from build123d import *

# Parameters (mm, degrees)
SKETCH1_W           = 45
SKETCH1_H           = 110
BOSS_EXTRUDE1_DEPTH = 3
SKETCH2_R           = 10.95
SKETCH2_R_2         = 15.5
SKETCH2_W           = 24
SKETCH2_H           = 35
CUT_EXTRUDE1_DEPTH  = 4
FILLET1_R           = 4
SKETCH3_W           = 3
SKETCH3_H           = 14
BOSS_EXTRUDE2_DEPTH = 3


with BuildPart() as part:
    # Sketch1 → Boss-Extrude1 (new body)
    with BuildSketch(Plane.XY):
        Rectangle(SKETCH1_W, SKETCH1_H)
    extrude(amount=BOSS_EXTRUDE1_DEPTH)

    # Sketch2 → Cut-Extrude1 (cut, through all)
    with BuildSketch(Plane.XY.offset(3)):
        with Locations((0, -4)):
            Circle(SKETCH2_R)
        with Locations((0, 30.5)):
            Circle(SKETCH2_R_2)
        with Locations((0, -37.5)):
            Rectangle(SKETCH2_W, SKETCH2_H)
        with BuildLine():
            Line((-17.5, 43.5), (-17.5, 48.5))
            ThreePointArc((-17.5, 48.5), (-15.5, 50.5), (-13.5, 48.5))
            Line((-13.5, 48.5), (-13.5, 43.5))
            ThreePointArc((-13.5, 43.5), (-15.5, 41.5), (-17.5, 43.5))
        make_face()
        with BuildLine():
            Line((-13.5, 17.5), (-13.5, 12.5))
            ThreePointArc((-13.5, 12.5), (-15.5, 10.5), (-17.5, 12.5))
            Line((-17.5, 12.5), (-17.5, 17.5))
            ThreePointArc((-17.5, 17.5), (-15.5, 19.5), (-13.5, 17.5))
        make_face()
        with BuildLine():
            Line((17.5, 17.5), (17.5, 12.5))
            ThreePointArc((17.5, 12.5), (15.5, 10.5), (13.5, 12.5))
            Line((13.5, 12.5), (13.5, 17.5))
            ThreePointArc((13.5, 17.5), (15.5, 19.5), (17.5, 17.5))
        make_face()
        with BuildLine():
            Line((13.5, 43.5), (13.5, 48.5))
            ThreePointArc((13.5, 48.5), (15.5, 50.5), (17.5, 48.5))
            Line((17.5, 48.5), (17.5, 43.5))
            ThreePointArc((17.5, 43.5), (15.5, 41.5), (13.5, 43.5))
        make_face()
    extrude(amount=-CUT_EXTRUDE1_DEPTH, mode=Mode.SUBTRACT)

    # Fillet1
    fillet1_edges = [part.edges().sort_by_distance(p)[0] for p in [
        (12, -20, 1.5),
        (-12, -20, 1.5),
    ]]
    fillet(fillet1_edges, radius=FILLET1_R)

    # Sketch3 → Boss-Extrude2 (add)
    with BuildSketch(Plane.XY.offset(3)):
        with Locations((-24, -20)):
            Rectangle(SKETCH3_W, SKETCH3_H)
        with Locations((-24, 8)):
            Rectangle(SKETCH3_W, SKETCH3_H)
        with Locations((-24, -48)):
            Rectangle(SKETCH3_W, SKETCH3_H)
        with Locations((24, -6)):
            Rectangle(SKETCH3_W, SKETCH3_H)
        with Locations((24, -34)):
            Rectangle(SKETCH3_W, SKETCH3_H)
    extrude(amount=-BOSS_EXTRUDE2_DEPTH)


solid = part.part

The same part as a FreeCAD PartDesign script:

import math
import FreeCAD as App
import Part
import Sketcher
Q = App.Units.Quantity


def edges_at(feature, points):
    """Names of the edges that pass closest to the given points."""
    edges = feature.Shape.Edges
    near = lambda p: min(range(len(edges)), key=lambda i: edges[i].distToShape(Part.Vertex(*p))[0])
    return sorted({f"Edge{near(p) + 1}" for p in points})


def add_polygon(sketch, points):
    """Adds a closed chain of lines whose ends are joined by coincident constraints."""
    first, n = sketch.GeometryCount, len(points)
    for a, b in zip(points, points[1:] + points[:1]):
        sketch.addGeometry(Part.LineSegment(App.Vector(*a, 0), App.Vector(*b, 0)), False)
    for i in range(n):
        sketch.addConstraint(Sketcher.Constraint("Coincident", first + i, 2, first + (i + 1) % n, 1))

doc = App.newDocument("Part")
body = doc.addObject("PartDesign::Body", "Body")

sketch1 = body.newObject("Sketcher::SketchObject", "Sketch")
sketch1.AttachmentSupport = (doc.getObject("XY_Plane"), [""])
sketch1.MapMode = "FlatFace"
add_polygon(sketch1, [(-22, 55), (-22, -55), (22, -55), (22, 55)])
sketch1.addConstraint(Sketcher.Constraint("Vertical", 0))
sketch1.addConstraint(Sketcher.Constraint("Horizontal", 1))
sketch1.addConstraint(Sketcher.Constraint("Vertical", 2))
sketch1.addConstraint(Sketcher.Constraint("Horizontal", 3))
sketch1.addConstraint(Sketcher.Constraint("Symmetric", 0, 2, 2, 2, -1, 1))
sketch1.addConstraint(Sketcher.Constraint("DistanceX", 1, 1, 1, 2, Q("45 mm")))
sketch1.addConstraint(Sketcher.Constraint("DistanceY", 0, 2, 0, 1, Q("110 mm")))
pad1 = body.newObject("PartDesign::Pad", "Pad")
pad1.Profile = sketch1
pad1.Length = 3

sketch2 = body.newObject("Sketcher::SketchObject", "Sketch001")
sketch2.AttachmentSupport = (doc.getObject("XY_Plane"), [""])
sketch2.MapMode = "FlatFace"
sketch2.AttachmentOffset = App.Placement(App.Vector(0, 0, 3), App.Rotation())
sketch2.addGeometry(Part.Circle(App.Vector(0, -4, 0), App.Vector(0, 0, 1), 10.9), False)
sketch2.addGeometry(Part.Circle(App.Vector(0, 30.5, 0), App.Vector(0, 0, 1), 15.5), False)
add_polygon(sketch2, [(-12, -20), (-12, -55), (12, -55), (12, -20)])
sketch2.addGeometry(Part.LineSegment(App.Vector(-17.5, 48.5, 0), App.Vector(-17.5, 43.5, 0)), False)
sketch2.addGeometry(Part.ArcOfCircle(Part.Circle(App.Vector(-15.5, 43.5, 0), App.Vector(0, 0, 1), 2), math.radians(180), math.radians(360)), False)
sketch2.addGeometry(Part.LineSegment(App.Vector(-13.5, 43.5, 0), App.Vector(-13.5, 48.5, 0)), False)
sketch2.addGeometry(Part.ArcOfCircle(Part.Circle(App.Vector(-15.5, 48.5, 0), App.Vector(0, 0, 1), 2), math.radians(0), math.radians(180)), False)
sketch2.addGeometry(Part.LineSegment(App.Vector(-13.5, 12.5, 0), App.Vector(-13.5, 17.5, 0)), False)
sketch2.addGeometry(Part.ArcOfCircle(Part.Circle(App.Vector(-15.5, 17.5, 0), App.Vector(0, 0, 1), 2), math.radians(0), math.radians(180)), False)
sketch2.addGeometry(Part.LineSegment(App.Vector(-17.5, 17.5, 0), App.Vector(-17.5, 12.5, 0)), False)
sketch2.addGeometry(Part.ArcOfCircle(Part.Circle(App.Vector(-15.5, 12.5, 0), App.Vector(0, 0, 1), 2), math.radians(180), math.radians(360)), False)
sketch2.addGeometry(Part.LineSegment(App.Vector(17.5, 12.5, 0), App.Vector(17.5, 17.5, 0)), False)
sketch2.addGeometry(Part.ArcOfCircle(Part.Circle(App.Vector(15.5, 17.5, 0), App.Vector(0, 0, 1), 2), math.radians(0), math.radians(180)), False)
sketch2.addGeometry(Part.LineSegment(App.Vector(13.5, 17.5, 0), App.Vector(13.5, 12.5, 0)), False)
sketch2.addGeometry(Part.ArcOfCircle(Part.Circle(App.Vector(15.5, 12.5, 0), App.Vector(0, 0, 1), 2), math.radians(180), math.radians(360)), False)
sketch2.addGeometry(Part.LineSegment(App.Vector(13.5, 48.5, 0), App.Vector(13.5, 43.5, 0)), False)
sketch2.addGeometry(Part.ArcOfCircle(Part.Circle(App.Vector(15.5, 43.5, 0), App.Vector(0, 0, 1), 2), math.radians(180), math.radians(360)), False)
sketch2.addGeometry(Part.LineSegment(App.Vector(17.5, 43.5, 0), App.Vector(17.5, 48.5, 0)), False)
sketch2.addGeometry(Part.ArcOfCircle(Part.Circle(App.Vector(15.5, 48.5, 0), App.Vector(0, 0, 1), 2), math.radians(0), math.radians(180)), False)
sketch2.addConstraint(Sketcher.Constraint("Tangent", 6, 2, 7, 1))
sketch2.addConstraint(Sketcher.Constraint("Tangent", 7, 2, 8, 1))
sketch2.addConstraint(Sketcher.Constraint("Tangent", 8, 2, 9, 1))
sketch2.addConstraint(Sketcher.Constraint("Tangent", 9, 2, 6, 1))
sketch2.addConstraint(Sketcher.Constraint("Tangent", 10, 2, 11, 1))
sketch2.addConstraint(Sketcher.Constraint("Tangent", 11, 2, 12, 1))
sketch2.addConstraint(Sketcher.Constraint("Tangent", 12, 2, 13, 1))
sketch2.addConstraint(Sketcher.Constraint("Tangent", 13, 2, 10, 1))
sketch2.addConstraint(Sketcher.Constraint("Tangent", 14, 2, 15, 1))
sketch2.addConstraint(Sketcher.Constraint("Tangent", 15, 2, 16, 1))
sketch2.addConstraint(Sketcher.Constraint("Tangent", 16, 2, 17, 1))
sketch2.addConstraint(Sketcher.Constraint("Tangent", 17, 2, 14, 1))
sketch2.addConstraint(Sketcher.Constraint("Tangent", 18, 2, 19, 1))
sketch2.addConstraint(Sketcher.Constraint("Tangent", 19, 2, 20, 1))
sketch2.addConstraint(Sketcher.Constraint("Tangent", 20, 2, 21, 1))
sketch2.addConstraint(Sketcher.Constraint("Tangent", 21, 2, 18, 1))
sketch2.addConstraint(Sketcher.Constraint("Vertical", 2))
sketch2.addConstraint(Sketcher.Constraint("Horizontal", 3))
sketch2.addConstraint(Sketcher.Constraint("Vertical", 4))
sketch2.addConstraint(Sketcher.Constraint("Horizontal", 5))
sketch2.addConstraint(Sketcher.Constraint("Vertical", 6))
sketch2.addConstraint(Sketcher.Constraint("Vertical", 8))
sketch2.addConstraint(Sketcher.Constraint("Vertical", 10))
sketch2.addConstraint(Sketcher.Constraint("Vertical", 12))
sketch2.addConstraint(Sketcher.Constraint("Vertical", 14))
sketch2.addConstraint(Sketcher.Constraint("Vertical", 16))
sketch2.addConstraint(Sketcher.Constraint("Vertical", 18))
sketch2.addConstraint(Sketcher.Constraint("Vertical", 20))
sketch2.addConstraint(Sketcher.Constraint("Equal", 9, 11))
sketch2.addConstraint(Sketcher.Constraint("Equal", 13, 15))
sketch2.addConstraint(Sketcher.Constraint("Equal", 17, 19))
sketch2.addConstraint(Sketcher.Constraint("Symmetric", 11, 3, 15, 3, -2))
sketch2.addConstraint(Sketcher.Constraint("Symmetric", 7, 3, 19, 3, -2))
sketch2.addConstraint(Sketcher.Constraint("PointOnObject", 0, 3, -2))
sketch2.addConstraint(Sketcher.Constraint("PointOnObject", 1, 3, -2))
sketch2.addConstraint(Sketcher.Constraint("Horizontal", 13, 3, 17, 3))
sketch2.addConstraint(Sketcher.Constraint("Horizontal", 9, 3, 21, 3))
sketch2.addConstraint(Sketcher.Constraint("Vertical", 9, 3, 11, 3))
sketch2.addConstraint(Sketcher.Constraint("Equal", 8, 10))
sketch2.addConstraint(Sketcher.Constraint("Diameter", 1, Q("31 mm")))
sketch2.addConstraint(Sketcher.Constraint("Radius", 7, Q("2 mm")))
sketch2.addConstraint(Sketcher.Constraint("Diameter", 0, Q("21.9 mm")))
sketch2.addConstraint(Sketcher.Constraint("DistanceX", 3, 1, 3, 2, Q("24 mm")))
sketch2.addConstraint(Sketcher.Constraint("DistanceY", 2, 2, 2, 1, Q("35 mm")))
sketch2.addConstraint(Sketcher.Constraint("DistanceY", 6, 2, 6, 1, Q("5 mm")))
sketch2.addConstraint(Sketcher.Constraint("DistanceY", 0, 3, -1, 1, Q("4 mm")))
sketch2.addConstraint(Sketcher.Constraint("DistanceX", 2, 2, -1, 1, Q("12 mm")))
sketch2.addConstraint(Sketcher.Constraint("DistanceY", 2, 2, -1, 1, Q("55 mm")))
sketch2.addConstraint(Sketcher.Constraint("DistanceY", 1, 3, 7, 3, Q("13 mm")))
sketch2.addConstraint(Sketcher.Constraint("DistanceY", 11, 3, 1, 3, Q("13 mm")))
sketch2.addConstraint(Sketcher.Constraint("DistanceX", 11, 3, 15, 3, Q("31 mm")))
sketch2.addConstraint(Sketcher.Constraint("DistanceY", -1, 1, 1, 3, Q("30.5 mm")))
pocket1 = body.newObject("PartDesign::Pocket", "Pocket")
pocket1.Profile = sketch2
pocket1.Type = "ThroughAll"
doc.recompute()

fillet = body.newObject("PartDesign::Fillet", "Fillet")
fillet.Base = (pocket1, edges_at(pocket1, [(12, -20, 1.5), (-12, -20, 1.5)]))
fillet.Radius = 4

sketch3 = body.newObject("Sketcher::SketchObject", "Sketch002")
sketch3.AttachmentSupport = (doc.getObject("XY_Plane"), [""])
sketch3.MapMode = "FlatFace"
sketch3.AttachmentOffset = App.Placement(App.Vector(0, 0, 3), App.Rotation())
add_polygon(sketch3, [(-25.5, -13), (-25.5, -27), (-22.5, -27), (-22.5, -13)])
add_polygon(sketch3, [(-25.5, 15), (-25.5, 1), (-22.5, 1), (-22.5, 15)])
add_polygon(sketch3, [(-25.5, -41), (-25.5, -55), (-22.5, -55), (-22.5, -41)])
add_polygon(sketch3, [(22.5, 1), (22.5, -13), (25.5, -13), (25.5, 1)])
add_polygon(sketch3, [(22.5, -27), (22.5, -41), (25.5, -41), (25.5, -27)])
sketch3.addConstraint(Sketcher.Constraint("Vertical", 0))
sketch3.addConstraint(Sketcher.Constraint("Horizontal", 1))
sketch3.addConstraint(Sketcher.Constraint("Vertical", 2))
sketch3.addConstraint(Sketcher.Constraint("Horizontal", 3))
sketch3.addConstraint(Sketcher.Constraint("Vertical", 4))
sketch3.addConstraint(Sketcher.Constraint("Horizontal", 5))
sketch3.addConstraint(Sketcher.Constraint("Vertical", 6))
sketch3.addConstraint(Sketcher.Constraint("Horizontal", 7))
sketch3.addConstraint(Sketcher.Constraint("Vertical", 8))
sketch3.addConstraint(Sketcher.Constraint("Horizontal", 9))
sketch3.addConstraint(Sketcher.Constraint("Vertical", 10))
sketch3.addConstraint(Sketcher.Constraint("Horizontal", 11))
sketch3.addConstraint(Sketcher.Constraint("Vertical", 12))
sketch3.addConstraint(Sketcher.Constraint("Horizontal", 13))
sketch3.addConstraint(Sketcher.Constraint("Vertical", 14))
sketch3.addConstraint(Sketcher.Constraint("Horizontal", 15))
sketch3.addConstraint(Sketcher.Constraint("Vertical", 16))
sketch3.addConstraint(Sketcher.Constraint("Horizontal", 17))
sketch3.addConstraint(Sketcher.Constraint("Vertical", 18))
sketch3.addConstraint(Sketcher.Constraint("Horizontal", 19))
sketch3.addConstraint(Sketcher.Constraint("Symmetric", 2, 2, 12, 2, -2))
sketch3.addConstraint(Sketcher.Constraint("Symmetric", 4, 2, 14, 2, -2))
sketch3.addConstraint(Sketcher.Constraint("Symmetric", 10, 2, 16, 2, -2))
sketch3.addConstraint(Sketcher.Constraint("Symmetric", 0, 2, 18, 2, -2))
sketch3.addConstraint(Sketcher.Constraint("Vertical", 3, 2, 4, 2))
sketch3.addConstraint(Sketcher.Constraint("Vertical", 2, 2, 5, 2))
sketch3.addConstraint(Sketcher.Constraint("Vertical", 7, 2, 8, 2))
sketch3.addConstraint(Sketcher.Constraint("Vertical", 6, 2, 9, 2))
sketch3.addConstraint(Sketcher.Constraint("Equal", 2, 4))
sketch3.addConstraint(Sketcher.Constraint("Equal", 6, 8))
sketch3.addConstraint(Sketcher.Constraint("Equal", 10, 12))
sketch3.addConstraint(Sketcher.Constraint("Equal", 14, 16))
sketch3.addConstraint(Sketcher.Constraint("DistanceX", 1, 1, 1, 2, Q("3 mm")))
sketch3.addConstraint(Sketcher.Constraint("DistanceY", 0, 2, 0, 1, Q("14 mm")))
sketch3.addConstraint(Sketcher.Constraint("DistanceY", 0, 2, -1, 1, Q("27 mm")))
sketch3.addConstraint(Sketcher.Constraint("DistanceX", 2, 2, 12, 2, Q("45 mm")))
pad2 = body.newObject("PartDesign::Pad", "Pad001")
pad2.Profile = sketch3
pad2.Length = 3
pad2.Reversed = True

doc.recompute()
